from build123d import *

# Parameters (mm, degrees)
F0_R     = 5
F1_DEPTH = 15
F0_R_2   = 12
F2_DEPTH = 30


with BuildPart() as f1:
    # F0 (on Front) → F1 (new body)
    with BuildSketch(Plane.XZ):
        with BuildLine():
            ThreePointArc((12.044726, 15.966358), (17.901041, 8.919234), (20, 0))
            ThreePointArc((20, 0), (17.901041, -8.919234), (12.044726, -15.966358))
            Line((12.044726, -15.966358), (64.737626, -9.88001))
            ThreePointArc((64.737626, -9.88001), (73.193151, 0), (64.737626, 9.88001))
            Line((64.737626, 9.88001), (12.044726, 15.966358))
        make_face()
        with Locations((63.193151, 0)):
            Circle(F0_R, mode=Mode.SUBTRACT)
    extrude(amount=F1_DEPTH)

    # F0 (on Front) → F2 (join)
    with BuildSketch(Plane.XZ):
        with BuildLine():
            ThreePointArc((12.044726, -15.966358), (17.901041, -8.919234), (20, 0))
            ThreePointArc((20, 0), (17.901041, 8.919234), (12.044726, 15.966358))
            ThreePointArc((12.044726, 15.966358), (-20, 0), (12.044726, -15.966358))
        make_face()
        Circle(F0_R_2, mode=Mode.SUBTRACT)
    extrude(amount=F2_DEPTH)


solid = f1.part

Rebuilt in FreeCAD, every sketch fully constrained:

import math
import FreeCAD as App
import Part
import Sketcher

V = App.Vector
Q = App.Units.Quantity

doc = App.newDocument("Part")
params = doc.addObject("Spreadsheet::Sheet", "Params")
for row, (alias, value) in enumerate([
    ("sketch1_diameter", "10 mm"),
    ("sketch1_radius", "20.000001 mm"),
    ("sketch1_radius2", "10 mm"),
    ("pad1_length", "15 mm"),
    ("sketch2_diameter", "24 mm"),
    ("sketch2_radius", "20.000001 mm"),
    ("pad2_length", "30 mm"),
], start=1):
    params.set(f"A{row}", alias)
    params.set(f"B{row}", "=" + value)
    params.setAlias(f"B{row}", alias)

body = doc.addObject("PartDesign::Body", "Body")

sketch1 = doc.addObject("Sketcher::SketchObject", "Sketch")
body.addObject(sketch1)
sketch1.AttachmentSupport = (doc.XZ_Plane, [""])
sketch1.MapMode = "FlatFace"
sketch1.addGeometry(Part.ArcOfCircle(Part.Circle(V(-0.000001, 0, 0), V(0, 0, 1), 20.000001), math.radians(0), math.radians(52.96977)), False)
sketch1.addGeometry(Part.ArcOfCircle(Part.Circle(V(-0.000001, 0, 0), V(0, 0, 1), 20.000001), math.radians(-52.96977), math.radians(0)), False)
sketch1.addGeometry(Part.LineSegment(V(12.044726, -15.966358, 0), V(64.737626, -9.88001, 0)), False)
sketch1.addGeometry(Part.ArcOfCircle(Part.Circle(V(63.193151, 0, 0), V(0, 0, 1), 10), math.radians(-81.115245), math.radians(81.115245)), False)
sketch1.addGeometry(Part.LineSegment(V(64.737626, 9.88001, 0), V(12.044726, 15.966358, 0)), False)
sketch1.addGeometry(Part.Circle(V(63.193151, 0, 0), V(0, 0, 1), 5), False)
sketch1.addConstraint(Sketcher.Constraint("Tangent", 0, 1, 1, 2))
sketch1.addConstraint(Sketcher.Constraint("Coincident", 1, 1, 2, 1))
sketch1.addConstraint(Sketcher.Constraint("Coincident", 2, 2, 3, 1))
sketch1.addConstraint(Sketcher.Constraint("Coincident", 3, 2, 4, 1))
sketch1.addConstraint(Sketcher.Constraint("Coincident", 4, 2, 0, 2))
sketch1.addConstraint(Sketcher.Constraint("Coincident", 0, 3, -1, 1))
sketch1.addConstraint(Sketcher.Constraint("Coincident", 5, 3, 3, 3))
sketch1.addConstraint(Sketcher.Constraint("Equal", 0, 1))
sketch1.addConstraint(Sketcher.Constraint("Symmetric", 2, 2, 3, 2, -1))
sketch1.addConstraint(Sketcher.Constraint("PointOnObject", 0, 1, -1))
sketch1.addConstraint(Sketcher.Constraint("Vertical", 1, 1, 4, 2))
sketch1.addConstraint(Sketcher.Constraint("Diameter", 5, Q("10 mm")))
sketch1.addConstraint(Sketcher.Constraint("Radius", 0, Q("20.000001 mm")))
sketch1.addConstraint(Sketcher.Constraint("Radius", 3, Q("10 mm")))
sketch1.addConstraint(Sketcher.Constraint("DistanceX", 1, 1, 2, 2, Q("52.6929 mm")))
sketch1.addConstraint(Sketcher.Constraint("Distance", 2, Q("53.04324 mm")))
sketch1.addConstraint(Sketcher.Constraint("DistanceX", -1, 1, 3, 3, Q("63.193151 mm")))
sketch1.setExpression("Constraints[11]", "Params.sketch1_diameter")
sketch1.setExpression("Constraints[12]", "Params.sketch1_radius")
sketch1.setExpression("Constraints[13]", "Params.sketch1_radius2")
pad1 = doc.addObject("PartDesign::Pad", "Pad")
body.addObject(pad1)
pad1.Profile = sketch1
pad1.setExpression("Length", "Params.pad1_length")

sketch2 = doc.addObject("Sketcher::SketchObject", "Sketch001")
body.addObject(sketch2)
sketch2.AttachmentSupport = (doc.XZ_Plane, [""])
sketch2.MapMode = "FlatFace"
sketch2.addGeometry(Part.ArcOfCircle(Part.Circle(V(-0.000001, 0, 0), V(0, 0, 1), 20.000001), math.radians(-52.96977), math.radians(0)), False)
sketch2.addGeometry(Part.ArcOfCircle(Part.Circle(V(-0.000001, 0, 0), V(0, 0, 1), 20.000001), math.radians(0), math.radians(52.96977)), False)
sketch2.addGeometry(Part.ArcOfCircle(Part.Circle(V(0, 0, 0), V(0, 0, 1), 20), math.radians(52.969772), math.radians(307.030228)), False)
sketch2.addGeometry(Part.Circle(V(0, 0, 0), V(0, 0, 1), 12), False)
sketch2.addConstraint(Sketcher.Constraint("Tangent", 0, 2, 1, 1))
sketch2.addConstraint(Sketcher.Constraint("Tangent", 1, 2, 2, 1))
sketch2.addConstraint(Sketcher.Constraint("Tangent", 2, 2, 0, 1))
sketch2.addConstraint(Sketcher.Constraint("Coincident", 0, 3, -1, 1))
sketch2.addConstraint(Sketcher.Constraint("Coincident", 3, 3, -1, 1))
sketch2.addConstraint(Sketcher.Constraint("PointOnObject", 0, 2, -1))
sketch2.addConstraint(Sketcher.Constraint("Vertical", 1, 2, 2, 2))
sketch2.addConstraint(Sketcher.Constraint("Diameter", 3, Q("24 mm")))
sketch2.addConstraint(Sketcher.Constraint("Radius", 0, Q("20.000001 mm")))
sketch2.addConstraint(Sketcher.Constraint("DistanceY", 0, 3, 1, 2, Q("15.966358 mm")))
sketch2.setExpression("Constraints[7]", "Params.sketch2_diameter")
sketch2.setExpression("Constraints[8]", "Params.sketch2_radius")
pad2 = doc.addObject("PartDesign::Pad", "Pad001")
body.addObject(pad2)
pad2.Profile = sketch2
pad2.setExpression("Length", "Params.pad2_length")

doc.recompute()
